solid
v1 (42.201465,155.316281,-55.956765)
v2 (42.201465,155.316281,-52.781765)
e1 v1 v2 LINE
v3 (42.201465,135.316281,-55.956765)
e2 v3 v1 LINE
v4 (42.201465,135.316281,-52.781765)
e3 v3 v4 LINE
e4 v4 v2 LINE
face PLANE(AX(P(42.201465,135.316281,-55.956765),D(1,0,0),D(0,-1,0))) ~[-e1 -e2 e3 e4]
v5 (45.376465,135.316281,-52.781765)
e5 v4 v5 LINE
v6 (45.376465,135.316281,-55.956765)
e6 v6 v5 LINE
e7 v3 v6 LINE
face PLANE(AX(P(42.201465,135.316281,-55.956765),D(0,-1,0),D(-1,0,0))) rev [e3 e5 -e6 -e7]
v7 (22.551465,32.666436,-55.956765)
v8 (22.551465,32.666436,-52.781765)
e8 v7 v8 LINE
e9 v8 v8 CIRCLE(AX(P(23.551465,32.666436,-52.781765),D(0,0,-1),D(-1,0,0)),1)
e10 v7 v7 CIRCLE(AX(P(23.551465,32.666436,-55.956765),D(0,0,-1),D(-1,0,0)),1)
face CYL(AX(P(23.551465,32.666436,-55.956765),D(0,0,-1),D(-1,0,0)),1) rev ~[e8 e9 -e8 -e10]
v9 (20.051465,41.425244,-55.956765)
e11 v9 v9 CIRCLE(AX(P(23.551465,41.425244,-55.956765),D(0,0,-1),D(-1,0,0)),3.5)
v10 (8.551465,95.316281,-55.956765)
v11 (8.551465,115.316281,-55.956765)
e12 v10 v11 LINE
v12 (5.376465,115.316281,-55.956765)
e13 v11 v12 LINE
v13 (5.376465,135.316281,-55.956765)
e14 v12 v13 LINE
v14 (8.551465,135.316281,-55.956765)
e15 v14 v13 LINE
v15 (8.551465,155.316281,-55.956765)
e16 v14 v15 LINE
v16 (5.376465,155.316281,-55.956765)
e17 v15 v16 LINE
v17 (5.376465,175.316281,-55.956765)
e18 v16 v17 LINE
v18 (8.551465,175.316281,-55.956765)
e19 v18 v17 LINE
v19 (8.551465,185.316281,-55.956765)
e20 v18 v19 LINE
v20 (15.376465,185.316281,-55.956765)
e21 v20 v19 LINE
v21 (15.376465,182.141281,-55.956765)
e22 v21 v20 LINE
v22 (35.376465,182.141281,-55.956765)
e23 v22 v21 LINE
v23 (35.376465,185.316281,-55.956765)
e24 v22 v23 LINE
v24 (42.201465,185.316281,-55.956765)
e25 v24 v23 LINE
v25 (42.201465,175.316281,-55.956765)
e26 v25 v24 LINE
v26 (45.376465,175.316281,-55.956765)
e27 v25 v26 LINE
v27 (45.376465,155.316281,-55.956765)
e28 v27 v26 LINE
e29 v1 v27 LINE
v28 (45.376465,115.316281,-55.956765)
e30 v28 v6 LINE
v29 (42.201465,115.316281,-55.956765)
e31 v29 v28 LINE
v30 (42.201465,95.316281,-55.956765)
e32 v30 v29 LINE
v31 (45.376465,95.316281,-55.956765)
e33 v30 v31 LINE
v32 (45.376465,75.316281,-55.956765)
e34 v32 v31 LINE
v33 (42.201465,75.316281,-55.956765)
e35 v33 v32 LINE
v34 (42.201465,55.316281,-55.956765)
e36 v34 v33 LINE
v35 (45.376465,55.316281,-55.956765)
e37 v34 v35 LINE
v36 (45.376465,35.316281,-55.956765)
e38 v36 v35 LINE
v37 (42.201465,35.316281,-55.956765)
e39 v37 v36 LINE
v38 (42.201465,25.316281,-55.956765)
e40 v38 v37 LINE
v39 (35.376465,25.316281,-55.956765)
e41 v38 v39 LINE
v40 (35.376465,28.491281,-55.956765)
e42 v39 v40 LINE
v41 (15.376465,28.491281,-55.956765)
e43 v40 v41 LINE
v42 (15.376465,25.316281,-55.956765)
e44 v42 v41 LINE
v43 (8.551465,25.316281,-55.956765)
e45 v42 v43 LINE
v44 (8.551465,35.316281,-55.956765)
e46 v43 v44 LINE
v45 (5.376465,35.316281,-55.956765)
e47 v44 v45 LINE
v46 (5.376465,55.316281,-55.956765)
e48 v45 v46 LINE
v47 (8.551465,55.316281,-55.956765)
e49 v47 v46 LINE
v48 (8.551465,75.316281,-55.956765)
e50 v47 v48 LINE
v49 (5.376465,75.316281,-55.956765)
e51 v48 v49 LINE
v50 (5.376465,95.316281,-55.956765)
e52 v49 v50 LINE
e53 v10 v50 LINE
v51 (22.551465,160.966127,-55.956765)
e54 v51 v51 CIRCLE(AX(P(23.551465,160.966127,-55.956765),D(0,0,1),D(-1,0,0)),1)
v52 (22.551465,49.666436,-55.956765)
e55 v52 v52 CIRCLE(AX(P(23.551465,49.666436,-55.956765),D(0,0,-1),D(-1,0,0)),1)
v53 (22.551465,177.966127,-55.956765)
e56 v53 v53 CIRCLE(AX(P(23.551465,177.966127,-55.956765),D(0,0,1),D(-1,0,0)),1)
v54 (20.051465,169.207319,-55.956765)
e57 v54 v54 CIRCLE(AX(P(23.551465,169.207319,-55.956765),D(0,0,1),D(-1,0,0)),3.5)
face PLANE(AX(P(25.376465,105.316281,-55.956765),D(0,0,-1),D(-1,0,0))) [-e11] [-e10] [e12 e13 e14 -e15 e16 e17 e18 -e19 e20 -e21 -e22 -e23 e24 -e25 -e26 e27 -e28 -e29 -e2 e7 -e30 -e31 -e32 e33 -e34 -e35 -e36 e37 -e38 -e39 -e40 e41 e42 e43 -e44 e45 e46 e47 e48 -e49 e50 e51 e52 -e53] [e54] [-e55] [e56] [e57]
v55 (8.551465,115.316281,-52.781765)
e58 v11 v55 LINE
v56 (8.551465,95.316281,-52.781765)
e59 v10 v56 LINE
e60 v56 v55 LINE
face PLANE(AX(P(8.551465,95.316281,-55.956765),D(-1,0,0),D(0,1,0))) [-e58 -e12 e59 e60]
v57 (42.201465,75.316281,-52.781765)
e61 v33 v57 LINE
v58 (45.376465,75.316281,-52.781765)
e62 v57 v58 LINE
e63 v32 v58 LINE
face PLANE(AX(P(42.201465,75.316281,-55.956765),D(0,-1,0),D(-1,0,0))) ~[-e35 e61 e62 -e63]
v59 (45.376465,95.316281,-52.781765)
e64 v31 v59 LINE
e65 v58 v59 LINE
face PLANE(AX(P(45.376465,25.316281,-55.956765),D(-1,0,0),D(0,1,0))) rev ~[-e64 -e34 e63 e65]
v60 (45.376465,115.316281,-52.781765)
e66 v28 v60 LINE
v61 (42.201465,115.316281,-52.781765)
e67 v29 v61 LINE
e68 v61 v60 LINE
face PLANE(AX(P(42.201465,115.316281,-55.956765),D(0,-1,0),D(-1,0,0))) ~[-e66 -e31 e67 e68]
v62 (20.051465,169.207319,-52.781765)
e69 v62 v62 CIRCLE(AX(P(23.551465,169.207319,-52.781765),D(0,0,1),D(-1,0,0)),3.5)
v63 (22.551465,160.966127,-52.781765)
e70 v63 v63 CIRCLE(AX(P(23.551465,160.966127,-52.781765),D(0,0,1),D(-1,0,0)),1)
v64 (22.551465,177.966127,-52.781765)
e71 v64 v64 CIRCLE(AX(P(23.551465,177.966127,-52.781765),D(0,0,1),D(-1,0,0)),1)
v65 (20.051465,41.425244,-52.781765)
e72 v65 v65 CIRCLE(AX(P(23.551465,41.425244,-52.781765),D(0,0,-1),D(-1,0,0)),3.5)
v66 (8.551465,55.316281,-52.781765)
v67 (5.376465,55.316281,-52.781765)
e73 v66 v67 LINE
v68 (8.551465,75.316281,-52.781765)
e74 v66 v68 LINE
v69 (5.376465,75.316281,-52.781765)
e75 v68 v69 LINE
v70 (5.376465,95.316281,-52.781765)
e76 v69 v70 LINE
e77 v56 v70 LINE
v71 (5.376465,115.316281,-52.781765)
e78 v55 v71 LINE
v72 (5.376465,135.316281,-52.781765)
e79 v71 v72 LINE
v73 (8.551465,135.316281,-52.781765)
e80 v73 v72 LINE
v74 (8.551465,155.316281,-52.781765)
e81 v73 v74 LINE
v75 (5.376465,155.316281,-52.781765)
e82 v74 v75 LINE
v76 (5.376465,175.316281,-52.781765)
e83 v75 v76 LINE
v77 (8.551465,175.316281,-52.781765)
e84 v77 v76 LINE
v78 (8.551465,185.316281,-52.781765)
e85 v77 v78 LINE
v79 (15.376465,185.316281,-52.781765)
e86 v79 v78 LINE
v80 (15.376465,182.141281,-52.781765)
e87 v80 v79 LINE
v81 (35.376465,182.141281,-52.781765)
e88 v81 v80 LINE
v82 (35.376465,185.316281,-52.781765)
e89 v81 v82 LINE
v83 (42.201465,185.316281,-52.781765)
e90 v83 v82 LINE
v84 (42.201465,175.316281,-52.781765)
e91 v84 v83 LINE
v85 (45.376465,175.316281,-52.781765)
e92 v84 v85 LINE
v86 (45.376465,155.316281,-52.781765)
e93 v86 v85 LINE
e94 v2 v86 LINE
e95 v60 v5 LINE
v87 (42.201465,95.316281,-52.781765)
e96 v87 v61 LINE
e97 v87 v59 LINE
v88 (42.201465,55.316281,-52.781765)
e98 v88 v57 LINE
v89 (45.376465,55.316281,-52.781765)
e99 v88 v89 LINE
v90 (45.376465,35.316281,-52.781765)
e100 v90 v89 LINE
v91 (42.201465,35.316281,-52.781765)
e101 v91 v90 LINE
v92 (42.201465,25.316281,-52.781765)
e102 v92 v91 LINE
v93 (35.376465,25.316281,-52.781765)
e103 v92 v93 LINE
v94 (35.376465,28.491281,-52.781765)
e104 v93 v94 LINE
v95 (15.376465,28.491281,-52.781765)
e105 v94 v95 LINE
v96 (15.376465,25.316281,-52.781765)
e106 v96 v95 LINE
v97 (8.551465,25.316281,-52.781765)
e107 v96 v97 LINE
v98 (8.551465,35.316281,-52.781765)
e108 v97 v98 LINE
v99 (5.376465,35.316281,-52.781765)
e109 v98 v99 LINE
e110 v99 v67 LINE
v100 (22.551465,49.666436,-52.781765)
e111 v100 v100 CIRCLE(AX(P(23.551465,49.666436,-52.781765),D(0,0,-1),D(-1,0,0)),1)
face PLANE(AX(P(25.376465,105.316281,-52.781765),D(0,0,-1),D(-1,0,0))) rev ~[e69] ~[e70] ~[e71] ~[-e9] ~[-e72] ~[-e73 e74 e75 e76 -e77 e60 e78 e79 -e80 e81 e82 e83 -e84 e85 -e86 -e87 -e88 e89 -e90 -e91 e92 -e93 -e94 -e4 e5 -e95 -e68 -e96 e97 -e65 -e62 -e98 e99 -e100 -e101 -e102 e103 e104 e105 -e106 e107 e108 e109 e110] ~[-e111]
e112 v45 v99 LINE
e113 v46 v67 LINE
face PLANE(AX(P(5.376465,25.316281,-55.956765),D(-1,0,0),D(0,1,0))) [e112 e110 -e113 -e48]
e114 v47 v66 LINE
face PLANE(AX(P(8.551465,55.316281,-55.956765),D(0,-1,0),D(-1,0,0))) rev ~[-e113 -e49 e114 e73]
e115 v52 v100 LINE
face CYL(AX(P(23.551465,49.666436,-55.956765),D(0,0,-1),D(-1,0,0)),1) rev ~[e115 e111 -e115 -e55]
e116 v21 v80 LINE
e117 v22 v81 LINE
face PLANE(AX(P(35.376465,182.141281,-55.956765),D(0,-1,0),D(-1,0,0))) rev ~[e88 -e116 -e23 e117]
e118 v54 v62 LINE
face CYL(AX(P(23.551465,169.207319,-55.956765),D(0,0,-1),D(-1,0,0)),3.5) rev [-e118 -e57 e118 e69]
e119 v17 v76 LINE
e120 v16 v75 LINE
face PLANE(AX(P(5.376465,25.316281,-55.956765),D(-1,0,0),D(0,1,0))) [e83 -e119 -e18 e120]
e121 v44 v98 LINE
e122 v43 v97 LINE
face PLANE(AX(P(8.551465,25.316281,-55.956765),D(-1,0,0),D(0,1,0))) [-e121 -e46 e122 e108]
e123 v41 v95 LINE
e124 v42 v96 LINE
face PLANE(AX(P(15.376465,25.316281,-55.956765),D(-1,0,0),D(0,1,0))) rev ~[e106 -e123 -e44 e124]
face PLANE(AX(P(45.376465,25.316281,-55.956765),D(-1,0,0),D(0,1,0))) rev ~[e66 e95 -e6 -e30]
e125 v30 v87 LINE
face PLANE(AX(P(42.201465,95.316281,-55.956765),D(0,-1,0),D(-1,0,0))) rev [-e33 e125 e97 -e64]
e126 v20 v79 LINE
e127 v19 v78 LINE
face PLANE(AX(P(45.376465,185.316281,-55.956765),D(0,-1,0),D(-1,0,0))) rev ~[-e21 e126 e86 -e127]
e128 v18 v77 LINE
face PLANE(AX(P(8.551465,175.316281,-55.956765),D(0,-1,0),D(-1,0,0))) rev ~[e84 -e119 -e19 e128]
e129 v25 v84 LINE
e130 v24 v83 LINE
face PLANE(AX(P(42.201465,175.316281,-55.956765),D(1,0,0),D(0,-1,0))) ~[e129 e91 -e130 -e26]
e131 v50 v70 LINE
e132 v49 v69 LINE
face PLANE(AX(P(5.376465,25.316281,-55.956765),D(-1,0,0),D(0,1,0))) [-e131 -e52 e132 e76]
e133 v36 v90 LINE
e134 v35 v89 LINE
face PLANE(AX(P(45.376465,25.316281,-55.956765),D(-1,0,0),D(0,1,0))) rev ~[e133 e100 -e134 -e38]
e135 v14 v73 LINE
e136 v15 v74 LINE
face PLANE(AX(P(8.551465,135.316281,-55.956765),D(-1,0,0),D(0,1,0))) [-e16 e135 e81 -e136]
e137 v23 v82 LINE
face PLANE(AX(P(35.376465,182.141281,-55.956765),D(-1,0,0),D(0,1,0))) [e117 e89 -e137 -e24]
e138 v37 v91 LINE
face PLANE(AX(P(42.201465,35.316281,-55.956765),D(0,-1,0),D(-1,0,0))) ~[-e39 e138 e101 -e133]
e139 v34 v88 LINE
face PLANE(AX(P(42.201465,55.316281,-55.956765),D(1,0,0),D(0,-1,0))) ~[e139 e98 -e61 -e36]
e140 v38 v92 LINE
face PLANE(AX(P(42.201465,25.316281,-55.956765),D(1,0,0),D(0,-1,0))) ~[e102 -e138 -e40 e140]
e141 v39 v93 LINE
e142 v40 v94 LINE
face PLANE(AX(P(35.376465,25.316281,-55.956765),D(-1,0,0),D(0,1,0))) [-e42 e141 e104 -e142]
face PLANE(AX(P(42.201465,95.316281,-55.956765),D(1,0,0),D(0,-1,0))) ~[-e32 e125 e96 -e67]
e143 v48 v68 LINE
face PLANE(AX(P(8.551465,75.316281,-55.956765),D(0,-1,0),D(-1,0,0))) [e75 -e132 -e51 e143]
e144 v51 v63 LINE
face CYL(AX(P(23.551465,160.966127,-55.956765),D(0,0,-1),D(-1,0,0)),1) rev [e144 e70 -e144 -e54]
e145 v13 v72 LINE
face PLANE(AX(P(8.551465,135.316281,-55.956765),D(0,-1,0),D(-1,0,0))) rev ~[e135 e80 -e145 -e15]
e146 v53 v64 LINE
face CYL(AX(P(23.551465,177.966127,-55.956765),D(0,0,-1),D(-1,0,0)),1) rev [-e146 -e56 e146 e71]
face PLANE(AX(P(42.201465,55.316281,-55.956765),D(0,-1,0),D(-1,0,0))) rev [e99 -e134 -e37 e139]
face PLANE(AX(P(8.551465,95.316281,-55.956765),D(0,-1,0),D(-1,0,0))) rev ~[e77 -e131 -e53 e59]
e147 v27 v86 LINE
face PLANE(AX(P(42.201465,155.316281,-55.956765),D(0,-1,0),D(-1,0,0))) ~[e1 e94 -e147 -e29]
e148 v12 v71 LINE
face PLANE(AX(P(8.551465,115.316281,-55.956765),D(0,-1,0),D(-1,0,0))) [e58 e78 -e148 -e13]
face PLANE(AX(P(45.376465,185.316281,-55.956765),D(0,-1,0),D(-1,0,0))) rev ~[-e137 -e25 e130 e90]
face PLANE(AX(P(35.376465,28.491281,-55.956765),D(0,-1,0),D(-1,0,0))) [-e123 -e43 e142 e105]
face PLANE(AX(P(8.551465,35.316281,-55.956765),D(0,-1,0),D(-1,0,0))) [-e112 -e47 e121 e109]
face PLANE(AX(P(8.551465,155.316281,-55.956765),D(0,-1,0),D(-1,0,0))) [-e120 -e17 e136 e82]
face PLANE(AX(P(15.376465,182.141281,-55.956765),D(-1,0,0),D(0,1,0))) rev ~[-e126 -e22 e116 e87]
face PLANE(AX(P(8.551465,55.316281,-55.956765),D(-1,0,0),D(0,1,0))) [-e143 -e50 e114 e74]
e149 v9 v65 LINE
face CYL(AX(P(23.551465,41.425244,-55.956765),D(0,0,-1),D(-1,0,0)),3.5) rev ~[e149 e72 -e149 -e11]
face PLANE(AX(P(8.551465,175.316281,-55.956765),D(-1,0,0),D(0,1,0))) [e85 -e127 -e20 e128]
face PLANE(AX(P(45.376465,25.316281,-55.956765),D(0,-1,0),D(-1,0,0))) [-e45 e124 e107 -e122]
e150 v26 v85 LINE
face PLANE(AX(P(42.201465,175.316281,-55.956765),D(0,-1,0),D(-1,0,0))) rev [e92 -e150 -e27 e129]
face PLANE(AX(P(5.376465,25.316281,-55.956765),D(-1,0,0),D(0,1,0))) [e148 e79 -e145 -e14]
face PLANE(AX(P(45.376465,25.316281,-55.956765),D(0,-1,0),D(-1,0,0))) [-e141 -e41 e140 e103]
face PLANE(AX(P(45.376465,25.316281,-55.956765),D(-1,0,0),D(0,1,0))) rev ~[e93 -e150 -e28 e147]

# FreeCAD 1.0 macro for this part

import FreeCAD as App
import Part
import Sketcher


def add_polygon(sketch, points):
    """Adds a closed chain of lines whose ends are joined by coincident constraints."""
    first, n = sketch.GeometryCount, len(points)
    for a, b in zip(points, points[1:] + points[:1]):
        sketch.addGeometry(Part.LineSegment(App.Vector(*a, 0), App.Vector(*b, 0)), False)
    for i in range(n):
        sketch.addConstraint(Sketcher.Constraint("Coincident", first + i, 2, first + (i + 1) % n, 1))

doc = App.newDocument("Part")
params = doc.addObject("Spreadsheet::Sheet", "Params")
for row, (alias, value) in enumerate([
    ("sketch1_width", "40 mm"),
    ("sketch1_height", "160 mm"),
    ("pad1_length", "3.175 mm"),
    ("sketch2_height", "10 mm"),
    ("sketch2_height2", "20 mm"),
    ("pocket1_length", "3.175 mm"),
    ("sketch3_diameter", "2 mm"),
    ("pocket2_length", "3.175 mm"),
    ("sketch4_width", "20 mm"),
    ("pocket3_length", "3.175 mm"),
    ("sketch5_diameter", "7 mm"),
    ("pocket4_length", "3.175 mm"),
], start=1):
    params.set(f"A{row}", alias)
    params.set(f"B{row}", "=" + value)
    params.setAlias(f"B{row}", alias)

body = doc.addObject("PartDesign::Body", "Body")

# Sketch on XY plane
sketch1 = doc.addObject("Sketcher::SketchObject", "Sketch")
body.addObject(sketch1)
sketch1.AttachmentSupport = (doc.XY_Plane, [""])
sketch1.MapMode = "FlatFace"
sketch1.AttachmentOffset = App.Placement(App.Vector(0, 0, -55.956765), App.Rotation())
add_polygon(sketch1, [(45.376465, 185.316281), (45.376465, 25.316281), (5.376465, 25.316281), (5.376465, 185.316281)])  # lines 0-3
sketch1.addConstraint([
    Sketcher.Constraint("Vertical", 0),
    Sketcher.Constraint("Horizontal", 1),
    Sketcher.Constraint("Vertical", 2),
    Sketcher.Constraint("Horizontal", 3),
    Sketcher.Constraint("DistanceX", 1, 2, 1, 1, 40.0),
    Sketcher.Constraint("DistanceY", 0, 2, 0, 1, 160.0),
    Sketcher.Constraint("DistanceY", -1, 1, 0, 2, 25.316281),
    Sketcher.Constraint("DistanceX", -1, 1, 0, 2, 45.376465),
])
sketch1.setExpression("Constraints[8]", "Params.sketch1_width")
sketch1.setExpression("Constraints[9]", "Params.sketch1_height")
pad1 = doc.addObject("PartDesign::Pad", "Pad")
body.addObject(pad1)
pad1.Profile = sketch1
pad1.setExpression("Length", "Params.pad1_length")

# Sketch on XY plane
sketch2 = doc.addObject("Sketcher::SketchObject", "Sketch001")
body.addObject(sketch2)
sketch2.AttachmentSupport = (doc.XY_Plane, [""])
sketch2.MapMode = "FlatFace"
sketch2.AttachmentOffset = App.Placement(App.Vector(0, 0, -55.956765), App.Rotation())
add_polygon(sketch2, [(8.551465, 185.316281), (8.551465, 175.316281), (5.376465, 175.316281), (5.376465, 185.316281)])  # lines 0-3
add_polygon(sketch2, [(8.551465, 155.316281), (8.551465, 135.316281), (5.376465, 135.316281), (5.376465, 155.316281)])  # lines 4-7
add_polygon(sketch2, [(8.551465, 115.316281), (8.551465, 95.316281), (5.376465, 95.316281), (5.376465, 115.316281)])  # lines 8-11
add_polygon(sketch2, [(8.551465, 75.316281), (8.551465, 55.316281), (5.376465, 55.316281), (5.376465, 75.316281)])  # lines 12-15
add_polygon(sketch2, [(8.551465, 35.316281), (8.551465, 25.316281), (5.376465, 25.316281), (5.376465, 35.316281)])  # lines 16-19
sketch2.addConstraint([
    Sketcher.Constraint("Vertical", 0),
    Sketcher.Constraint("Horizontal", 1),
    Sketcher.Constraint("Vertical", 2),
    Sketcher.Constraint("Horizontal", 3),
    Sketcher.Constraint("Vertical", 4),
    Sketcher.Constraint("Horizontal", 5),
    Sketcher.Constraint("Vertical", 6),
    Sketcher.Constraint("Horizontal", 7),
    Sketcher.Constraint("Vertical", 8),
    Sketcher.Constraint("Horizontal", 9),
    Sketcher.Constraint("Vertical", 10),
    Sketcher.Constraint("Horizontal", 11),
    Sketcher.Constraint("Vertical", 12),
    Sketcher.Constraint("Horizontal", 13),
    Sketcher.Constraint("Vertical", 14),
    Sketcher.Constraint("Horizontal", 15),
    Sketcher.Constraint("Vertical", 16),
    Sketcher.Constraint("Horizontal", 17),
    Sketcher.Constraint("Vertical", 18),
    Sketcher.Constraint("Horizontal", 19),
    Sketcher.Constraint("Vertical", 3, 2, 4, 2),
    Sketcher.Constraint("Vertical", 2, 2, 5, 2),
    Sketcher.Constraint("Vertical", 7, 2, 8, 2),
    Sketcher.Constraint("Vertical", 6, 2, 9, 2),
    Sketcher.Constraint("Vertical", 11, 2, 12, 2),
    Sketcher.Constraint("Vertical", 10, 2, 13, 2),
    Sketcher.Constraint("Vertical", 15, 2, 16, 2),
    Sketcher.Constraint("Vertical", 14, 2, 17, 2),
    Sketcher.Constraint("Equal", 6, 8),
    Sketcher.Constraint("Equal", 10, 12),
    Sketcher.Constraint("Equal", 2, 16),
    Sketcher.Constraint("DistanceY", 0, 2, 0, 1, 10.0),
    Sketcher.Constraint("DistanceY", 4, 2, 4, 1, 20.0),
    Sketcher.Constraint("DistanceY", 4, 2, 0, 2, 40.0),
    Sketcher.Constraint("DistanceY", 8, 2, 4, 2, 40.0),
    Sketcher.Constraint("DistanceY", 12, 2, 8, 2, 40.0),
    Sketcher.Constraint("DistanceY", 16, 2, 12, 2, 30.0),
    Sketcher.Constraint("DistanceX", 1, 2, 1, 1, 3.175),
    Sketcher.Constraint("DistanceY", -1, 1, 0, 2, 175.316281),
    Sketcher.Constraint("DistanceX", -1, 1, 0, 2, 8.551465),
])
sketch2.setExpression("Constraints[51]", "Params.sketch2_height")
sketch2.setExpression("Constraints[52]", "Params.sketch2_height2")
pocket1 = doc.addObject("PartDesign::Pocket", "Pocket")
body.addObject(pocket1)
pocket1.Profile = sketch2
pocket1.setExpression("Length", "Params.pocket1_length")
pocket1.Reversed = True

# Sketch on XY plane
sketch3 = doc.addObject("Sketcher::SketchObject", "Sketch002")
body.addObject(sketch3)
sketch3.AttachmentSupport = (doc.XY_Plane, [""])
sketch3.MapMode = "FlatFace"
sketch3.AttachmentOffset = App.Placement(App.Vector(0, 0, -55.956765), App.Rotation())
sketch3.addGeometry([
    Part.Circle(App.Vector(23.551465, 32.666436, 0), App.Vector(0, 0, 1), 1),
    Part.Circle(App.Vector(23.551465, 49.666436, 0), App.Vector(0, 0, 1), 1),
], False)
sketch3.addConstraint([
    Sketcher.Constraint("Equal", 0, 1),
    Sketcher.Constraint("Vertical", 0, 3, 1, 3),
    Sketcher.Constraint("Diameter", 0, 2.0),
    Sketcher.Constraint("DistanceY", 0, 3, 1, 3, 17.0),
    Sketcher.Constraint("DistanceX", -1, 1, 0, 3, 23.551465),
    Sketcher.Constraint("DistanceY", -1, 1, 0, 3, 32.666436),
])
sketch3.setExpression("Constraints[2]", "Params.sketch3_diameter")
pocket2 = doc.addObject("PartDesign::Pocket", "Pocket001")
body.addObject(pocket2)
pocket2.Profile = sketch3
pocket2.setExpression("Length", "Params.pocket2_length")
pocket2.Reversed = True
doc.recompute()

datumplane = doc.addObject("PartDesign::Plane", "DatumPlane")
body.addObject(datumplane)
datumplane.AttachmentSupport = (doc.YZ_Plane, [""])
datumplane.MapMode = "FlatFace"
datumplane.AttachmentOffset = App.Placement(App.Vector(0, 0, 25.376465), App.Rotation())
mirrored = doc.addObject("PartDesign::Mirrored", "Mirrored")
body.addObject(mirrored)
mirrored.Originals = [pocket1]
mirrored.MirrorPlane = (datumplane, [""])
body.Tip = mirrored

# Sketch on XY plane
sketch4 = doc.addObject("Sketcher::SketchObject", "Sketch003")
body.addObject(sketch4)
sketch4.AttachmentSupport = (doc.XY_Plane, [""])
sketch4.MapMode = "FlatFace"
sketch4.AttachmentOffset = App.Placement(App.Vector(0, 0, -55.956765), App.Rotation())
add_polygon(sketch4, [(35.376465, 28.491281), (35.376465, 25.316281), (15.376465, 25.316281), (15.376465, 28.491281)])  # lines 0-3
add_polygon(sketch4, [(35.376465, 185.316281), (35.376465, 182.141281), (15.376465, 182.141281), (15.376465, 185.316281)])  # lines 4-7
sketch4.addConstraint([
    Sketcher.Constraint("Vertical", 0),
    Sketcher.Constraint("Horizontal", 1),
    Sketcher.Constraint("Vertical", 2),
    Sketcher.Constraint("Horizontal", 3),
    Sketcher.Constraint("Vertical", 4),
    Sketcher.Constraint("Horizontal", 5),
    Sketcher.Constraint("Vertical", 6),
    Sketcher.Constraint("Horizontal", 7),
    Sketcher.Constraint("Vertical", 3, 2, 4, 2),
    Sketcher.Constraint("Vertical", 2, 2, 5, 2),
    Sketcher.Constraint("Equal", 2, 4),
    Sketcher.Constraint("DistanceX", 1, 2, 1, 1, 20.0),
    Sketcher.Constraint("DistanceY", 1, 2, 6, 2, 160.0),
    Sketcher.Constraint("DistanceY", 0, 2, 0, 1, 3.175),
    Sketcher.Constraint("DistanceY", -1, 1, 0, 2, 25.316281),
    Sketcher.Constraint("DistanceX", -1, 1, 0, 2, 35.376465),
])
sketch4.setExpression("Constraints[19]", "Params.sketch4_width")
pocket3 = doc.addObject("PartDesign::Pocket", "Pocket002")
body.addObject(pocket3)
pocket3.Profile = sketch4
pocket3.setExpression("Length", "Params.pocket3_length")
pocket3.Reversed = True

# Sketch on XY plane
sketch5 = doc.addObject("Sketcher::SketchObject", "Sketch004")
body.addObject(sketch5)
sketch5.AttachmentSupport = (doc.XY_Plane, [""])
sketch5.MapMode = "FlatFace"
sketch5.AttachmentOffset = App.Placement(App.Vector(0, 0, -55.956765), App.Rotation())
sketch5.addGeometry(Part.Circle(App.Vector(23.551465, 41.425244, 0), App.Vector(0, 0, 1), 3.5), False)
sketch5.addConstraint([
    Sketcher.Constraint("Diameter", 0, 7.0),
    Sketcher.Constraint("DistanceX", -1, 1, 0, 3, 23.551465),
    Sketcher.Constraint("DistanceY", -1, 1, 0, 3, 41.425244),
])
sketch5.setExpression("Constraints[0]", "Params.sketch5_diameter")
pocket4 = doc.addObject("PartDesign::Pocket", "Pocket003")
body.addObject(pocket4)
pocket4.Profile = sketch5
pocket4.setExpression("Length", "Params.pocket4_length")
pocket4.Reversed = True
doc.recompute()

datumplane2 = doc.addObject("PartDesign::Plane", "DatumPlane001")
body.addObject(datumplane2)
datumplane2.AttachmentSupport = (doc.XZ_Plane, [""])
datumplane2.MapMode = "FlatFace"
datumplane2.AttachmentOffset = App.Placement(App.Vector(0, 0, -105.316281), App.Rotation())
mirrored2 = doc.addObject("PartDesign::Mirrored", "Mirrored001")
body.addObject(mirrored2)
mirrored2.Originals = [pocket2, pocket4]
mirrored2.MirrorPlane = (datumplane2, [""])
body.Tip = mirrored2

doc.recompute()
